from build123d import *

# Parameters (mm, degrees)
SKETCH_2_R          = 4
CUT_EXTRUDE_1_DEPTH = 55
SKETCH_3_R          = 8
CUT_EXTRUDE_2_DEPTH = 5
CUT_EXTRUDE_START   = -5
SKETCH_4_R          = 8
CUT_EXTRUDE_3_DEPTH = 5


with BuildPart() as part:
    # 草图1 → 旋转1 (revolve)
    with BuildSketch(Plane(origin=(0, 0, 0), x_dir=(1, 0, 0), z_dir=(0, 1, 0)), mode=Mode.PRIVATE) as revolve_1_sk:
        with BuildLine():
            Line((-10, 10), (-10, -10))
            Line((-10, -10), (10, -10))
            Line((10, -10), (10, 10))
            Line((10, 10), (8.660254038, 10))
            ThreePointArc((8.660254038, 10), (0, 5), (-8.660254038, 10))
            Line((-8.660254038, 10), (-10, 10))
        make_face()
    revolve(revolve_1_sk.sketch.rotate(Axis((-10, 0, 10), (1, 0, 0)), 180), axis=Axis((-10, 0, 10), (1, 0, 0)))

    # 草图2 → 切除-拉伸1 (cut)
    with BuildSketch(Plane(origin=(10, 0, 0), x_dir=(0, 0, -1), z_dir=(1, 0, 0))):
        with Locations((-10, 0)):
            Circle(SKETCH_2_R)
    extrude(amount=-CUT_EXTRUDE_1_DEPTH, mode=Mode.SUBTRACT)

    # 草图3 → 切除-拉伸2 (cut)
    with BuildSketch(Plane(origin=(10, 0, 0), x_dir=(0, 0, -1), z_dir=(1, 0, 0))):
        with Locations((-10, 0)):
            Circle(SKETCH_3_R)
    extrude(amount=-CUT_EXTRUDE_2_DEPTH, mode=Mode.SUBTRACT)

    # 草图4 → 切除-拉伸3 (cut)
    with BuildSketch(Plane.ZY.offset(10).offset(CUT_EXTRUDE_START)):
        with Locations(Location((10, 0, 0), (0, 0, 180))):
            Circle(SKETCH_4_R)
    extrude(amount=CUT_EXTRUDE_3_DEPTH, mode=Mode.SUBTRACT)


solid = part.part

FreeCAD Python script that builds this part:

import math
import FreeCAD as App
import Part
import Sketcher
from FreeCAD import Vector
Q = App.Units.Quantity

doc = App.newDocument("Part")
body = doc.addObject("PartDesign::Body", "Body")

# Sketch on XZ plane
sketch1 = body.newObject("Sketcher::SketchObject", "Sketch")
sketch1.AttachmentSupport = (doc.getObject("XZ_Plane"), [""])
sketch1.MapMode = "FlatFace"
sketch1.addGeometry([
    Part.LineSegment(Vector(-10, -10, 0), Vector(-10, 10, 0)),  # 0
    Part.LineSegment(Vector(-10, 10, 0), Vector(10, 10, 0)),  # 1
    Part.LineSegment(Vector(10, 10, 0), Vector(10, -10, 0)),  # 2
    Part.LineSegment(Vector(10, -10, 0), Vector(8.7, -10, 0)),  # 3
    Part.ArcOfCircle(Part.Circle(Vector(0, -15, 0), Vector(0, 0, 1), 10), math.radians(30), math.radians(150)),  # 4
    Part.LineSegment(Vector(-8.7, -10, 0), Vector(-10, -10, 0)),  # 5
], False)
sketch1.addGeometry(Part.LineSegment(Vector(-10, 10, 0), Vector(10, 10, 0)), True)  # axis
sketch1.addConstraint([
    Sketcher.Constraint("Coincident", 0, 2, 1, 1),
    Sketcher.Constraint("Coincident", 1, 2, 2, 1),
    Sketcher.Constraint("Coincident", 2, 2, 3, 1),
    Sketcher.Constraint("Coincident", 3, 2, 4, 1),
    Sketcher.Constraint("Coincident", 4, 2, 5, 1),
    Sketcher.Constraint("Coincident", 5, 2, 0, 1),
    Sketcher.Constraint("Vertical", 0),
    Sketcher.Constraint("Horizontal", 1),
    Sketcher.Constraint("Vertical", 2),
    Sketcher.Constraint("Horizontal", 3),
    Sketcher.Constraint("Horizontal", 5),
    Sketcher.Constraint("Horizontal", 6),
    Sketcher.Constraint("Coincident", 6, 1, 0, 2),
    Sketcher.Constraint("Symmetric", 0, 2, 2, 2, -1, 1),
    Sketcher.Constraint("Symmetric", 5, 2, 6, 2, -1, 1),
    Sketcher.Constraint("PointOnObject", 4, 3, -2),
    Sketcher.Constraint("Equal", 6, 0),
    Sketcher.Constraint("Radius", 4, Q("10 mm")),
    Sketcher.Constraint("DistanceX", 1, 1, 1, 2, Q("20 mm")),
    Sketcher.Constraint("DistanceY", 4, 3, -1, 1, Q("15 mm")),
])
revolution = body.newObject("PartDesign::Revolution", "Revolution")
revolution.Profile = sketch1
revolution.ReferenceAxis = (sketch1, ["Axis0"])
revolution.Angle = 360

# Sketch on YZ plane
sketch2 = body.newObject("Sketcher::SketchObject", "Sketch001")
sketch2.AttachmentSupport = (doc.getObject("YZ_Plane"), [""])
sketch2.MapMode = "FlatFace"
sketch2.AttachmentOffset = App.Placement(Vector(0, 0, 10), App.Rotation())
sketch2.addGeometry(Part.Circle(Vector(0, 10, 0), Vector(0, 0, 1), 4), False)
sketch2.addConstraint([
    Sketcher.Constraint("PointOnObject", 0, 3, -2),
    Sketcher.Constraint("Diameter", 0, Q("8 mm")),
    Sketcher.Constraint("DistanceY", -1, 1, 0, 3, Q("10 mm")),
])
pocket1 = body.newObject("PartDesign::Pocket", "Pocket")
pocket1.Profile = sketch2
pocket1.Length = 55

# Sketch on YZ plane
sketch3 = body.newObject("Sketcher::SketchObject", "Sketch002")
sketch3.AttachmentSupport = (doc.getObject("YZ_Plane"), [""])
sketch3.MapMode = "FlatFace"
sketch3.AttachmentOffset = App.Placement(Vector(0, 0, 10), App.Rotation())
sketch3.addGeometry(Part.Circle(Vector(0, 10, 0), Vector(0, 0, 1), 8), False)
sketch3.addConstraint([
    Sketcher.Constraint("PointOnObject", 0, 3, -2),
    Sketcher.Constraint("Diameter", 0, Q("16 mm")),
    Sketcher.Constraint("DistanceY", -1, 1, 0, 3, Q("10 mm")),
])
pocket2 = body.newObject("PartDesign::Pocket", "Pocket001")
pocket2.Profile = sketch3
pocket2.Length = 5

# Sketch on YZ plane
sketch4 = body.newObject("Sketcher::SketchObject", "Sketch003")
sketch4.AttachmentSupport = (doc.getObject("YZ_Plane"), [""])
sketch4.MapMode = "FlatFace"
sketch4.AttachmentOffset = App.Placement(Vector(0, 0, -5), App.Rotation())
sketch4.addGeometry(Part.Circle(Vector(0, 10, 0), Vector(0, 0, 1), 8), False)
sketch4.addConstraint([
    Sketcher.Constraint("PointOnObject", 0, 3, -2),
    Sketcher.Constraint("Diameter", 0, Q("16 mm")),
    Sketcher.Constraint("DistanceY", -1, 1, 0, 3, Q("10 mm")),
])
pocket3 = body.newObject("PartDesign::Pocket", "Pocket002")
pocket3.Profile = sketch4
pocket3.Length = 5

doc.recompute()
